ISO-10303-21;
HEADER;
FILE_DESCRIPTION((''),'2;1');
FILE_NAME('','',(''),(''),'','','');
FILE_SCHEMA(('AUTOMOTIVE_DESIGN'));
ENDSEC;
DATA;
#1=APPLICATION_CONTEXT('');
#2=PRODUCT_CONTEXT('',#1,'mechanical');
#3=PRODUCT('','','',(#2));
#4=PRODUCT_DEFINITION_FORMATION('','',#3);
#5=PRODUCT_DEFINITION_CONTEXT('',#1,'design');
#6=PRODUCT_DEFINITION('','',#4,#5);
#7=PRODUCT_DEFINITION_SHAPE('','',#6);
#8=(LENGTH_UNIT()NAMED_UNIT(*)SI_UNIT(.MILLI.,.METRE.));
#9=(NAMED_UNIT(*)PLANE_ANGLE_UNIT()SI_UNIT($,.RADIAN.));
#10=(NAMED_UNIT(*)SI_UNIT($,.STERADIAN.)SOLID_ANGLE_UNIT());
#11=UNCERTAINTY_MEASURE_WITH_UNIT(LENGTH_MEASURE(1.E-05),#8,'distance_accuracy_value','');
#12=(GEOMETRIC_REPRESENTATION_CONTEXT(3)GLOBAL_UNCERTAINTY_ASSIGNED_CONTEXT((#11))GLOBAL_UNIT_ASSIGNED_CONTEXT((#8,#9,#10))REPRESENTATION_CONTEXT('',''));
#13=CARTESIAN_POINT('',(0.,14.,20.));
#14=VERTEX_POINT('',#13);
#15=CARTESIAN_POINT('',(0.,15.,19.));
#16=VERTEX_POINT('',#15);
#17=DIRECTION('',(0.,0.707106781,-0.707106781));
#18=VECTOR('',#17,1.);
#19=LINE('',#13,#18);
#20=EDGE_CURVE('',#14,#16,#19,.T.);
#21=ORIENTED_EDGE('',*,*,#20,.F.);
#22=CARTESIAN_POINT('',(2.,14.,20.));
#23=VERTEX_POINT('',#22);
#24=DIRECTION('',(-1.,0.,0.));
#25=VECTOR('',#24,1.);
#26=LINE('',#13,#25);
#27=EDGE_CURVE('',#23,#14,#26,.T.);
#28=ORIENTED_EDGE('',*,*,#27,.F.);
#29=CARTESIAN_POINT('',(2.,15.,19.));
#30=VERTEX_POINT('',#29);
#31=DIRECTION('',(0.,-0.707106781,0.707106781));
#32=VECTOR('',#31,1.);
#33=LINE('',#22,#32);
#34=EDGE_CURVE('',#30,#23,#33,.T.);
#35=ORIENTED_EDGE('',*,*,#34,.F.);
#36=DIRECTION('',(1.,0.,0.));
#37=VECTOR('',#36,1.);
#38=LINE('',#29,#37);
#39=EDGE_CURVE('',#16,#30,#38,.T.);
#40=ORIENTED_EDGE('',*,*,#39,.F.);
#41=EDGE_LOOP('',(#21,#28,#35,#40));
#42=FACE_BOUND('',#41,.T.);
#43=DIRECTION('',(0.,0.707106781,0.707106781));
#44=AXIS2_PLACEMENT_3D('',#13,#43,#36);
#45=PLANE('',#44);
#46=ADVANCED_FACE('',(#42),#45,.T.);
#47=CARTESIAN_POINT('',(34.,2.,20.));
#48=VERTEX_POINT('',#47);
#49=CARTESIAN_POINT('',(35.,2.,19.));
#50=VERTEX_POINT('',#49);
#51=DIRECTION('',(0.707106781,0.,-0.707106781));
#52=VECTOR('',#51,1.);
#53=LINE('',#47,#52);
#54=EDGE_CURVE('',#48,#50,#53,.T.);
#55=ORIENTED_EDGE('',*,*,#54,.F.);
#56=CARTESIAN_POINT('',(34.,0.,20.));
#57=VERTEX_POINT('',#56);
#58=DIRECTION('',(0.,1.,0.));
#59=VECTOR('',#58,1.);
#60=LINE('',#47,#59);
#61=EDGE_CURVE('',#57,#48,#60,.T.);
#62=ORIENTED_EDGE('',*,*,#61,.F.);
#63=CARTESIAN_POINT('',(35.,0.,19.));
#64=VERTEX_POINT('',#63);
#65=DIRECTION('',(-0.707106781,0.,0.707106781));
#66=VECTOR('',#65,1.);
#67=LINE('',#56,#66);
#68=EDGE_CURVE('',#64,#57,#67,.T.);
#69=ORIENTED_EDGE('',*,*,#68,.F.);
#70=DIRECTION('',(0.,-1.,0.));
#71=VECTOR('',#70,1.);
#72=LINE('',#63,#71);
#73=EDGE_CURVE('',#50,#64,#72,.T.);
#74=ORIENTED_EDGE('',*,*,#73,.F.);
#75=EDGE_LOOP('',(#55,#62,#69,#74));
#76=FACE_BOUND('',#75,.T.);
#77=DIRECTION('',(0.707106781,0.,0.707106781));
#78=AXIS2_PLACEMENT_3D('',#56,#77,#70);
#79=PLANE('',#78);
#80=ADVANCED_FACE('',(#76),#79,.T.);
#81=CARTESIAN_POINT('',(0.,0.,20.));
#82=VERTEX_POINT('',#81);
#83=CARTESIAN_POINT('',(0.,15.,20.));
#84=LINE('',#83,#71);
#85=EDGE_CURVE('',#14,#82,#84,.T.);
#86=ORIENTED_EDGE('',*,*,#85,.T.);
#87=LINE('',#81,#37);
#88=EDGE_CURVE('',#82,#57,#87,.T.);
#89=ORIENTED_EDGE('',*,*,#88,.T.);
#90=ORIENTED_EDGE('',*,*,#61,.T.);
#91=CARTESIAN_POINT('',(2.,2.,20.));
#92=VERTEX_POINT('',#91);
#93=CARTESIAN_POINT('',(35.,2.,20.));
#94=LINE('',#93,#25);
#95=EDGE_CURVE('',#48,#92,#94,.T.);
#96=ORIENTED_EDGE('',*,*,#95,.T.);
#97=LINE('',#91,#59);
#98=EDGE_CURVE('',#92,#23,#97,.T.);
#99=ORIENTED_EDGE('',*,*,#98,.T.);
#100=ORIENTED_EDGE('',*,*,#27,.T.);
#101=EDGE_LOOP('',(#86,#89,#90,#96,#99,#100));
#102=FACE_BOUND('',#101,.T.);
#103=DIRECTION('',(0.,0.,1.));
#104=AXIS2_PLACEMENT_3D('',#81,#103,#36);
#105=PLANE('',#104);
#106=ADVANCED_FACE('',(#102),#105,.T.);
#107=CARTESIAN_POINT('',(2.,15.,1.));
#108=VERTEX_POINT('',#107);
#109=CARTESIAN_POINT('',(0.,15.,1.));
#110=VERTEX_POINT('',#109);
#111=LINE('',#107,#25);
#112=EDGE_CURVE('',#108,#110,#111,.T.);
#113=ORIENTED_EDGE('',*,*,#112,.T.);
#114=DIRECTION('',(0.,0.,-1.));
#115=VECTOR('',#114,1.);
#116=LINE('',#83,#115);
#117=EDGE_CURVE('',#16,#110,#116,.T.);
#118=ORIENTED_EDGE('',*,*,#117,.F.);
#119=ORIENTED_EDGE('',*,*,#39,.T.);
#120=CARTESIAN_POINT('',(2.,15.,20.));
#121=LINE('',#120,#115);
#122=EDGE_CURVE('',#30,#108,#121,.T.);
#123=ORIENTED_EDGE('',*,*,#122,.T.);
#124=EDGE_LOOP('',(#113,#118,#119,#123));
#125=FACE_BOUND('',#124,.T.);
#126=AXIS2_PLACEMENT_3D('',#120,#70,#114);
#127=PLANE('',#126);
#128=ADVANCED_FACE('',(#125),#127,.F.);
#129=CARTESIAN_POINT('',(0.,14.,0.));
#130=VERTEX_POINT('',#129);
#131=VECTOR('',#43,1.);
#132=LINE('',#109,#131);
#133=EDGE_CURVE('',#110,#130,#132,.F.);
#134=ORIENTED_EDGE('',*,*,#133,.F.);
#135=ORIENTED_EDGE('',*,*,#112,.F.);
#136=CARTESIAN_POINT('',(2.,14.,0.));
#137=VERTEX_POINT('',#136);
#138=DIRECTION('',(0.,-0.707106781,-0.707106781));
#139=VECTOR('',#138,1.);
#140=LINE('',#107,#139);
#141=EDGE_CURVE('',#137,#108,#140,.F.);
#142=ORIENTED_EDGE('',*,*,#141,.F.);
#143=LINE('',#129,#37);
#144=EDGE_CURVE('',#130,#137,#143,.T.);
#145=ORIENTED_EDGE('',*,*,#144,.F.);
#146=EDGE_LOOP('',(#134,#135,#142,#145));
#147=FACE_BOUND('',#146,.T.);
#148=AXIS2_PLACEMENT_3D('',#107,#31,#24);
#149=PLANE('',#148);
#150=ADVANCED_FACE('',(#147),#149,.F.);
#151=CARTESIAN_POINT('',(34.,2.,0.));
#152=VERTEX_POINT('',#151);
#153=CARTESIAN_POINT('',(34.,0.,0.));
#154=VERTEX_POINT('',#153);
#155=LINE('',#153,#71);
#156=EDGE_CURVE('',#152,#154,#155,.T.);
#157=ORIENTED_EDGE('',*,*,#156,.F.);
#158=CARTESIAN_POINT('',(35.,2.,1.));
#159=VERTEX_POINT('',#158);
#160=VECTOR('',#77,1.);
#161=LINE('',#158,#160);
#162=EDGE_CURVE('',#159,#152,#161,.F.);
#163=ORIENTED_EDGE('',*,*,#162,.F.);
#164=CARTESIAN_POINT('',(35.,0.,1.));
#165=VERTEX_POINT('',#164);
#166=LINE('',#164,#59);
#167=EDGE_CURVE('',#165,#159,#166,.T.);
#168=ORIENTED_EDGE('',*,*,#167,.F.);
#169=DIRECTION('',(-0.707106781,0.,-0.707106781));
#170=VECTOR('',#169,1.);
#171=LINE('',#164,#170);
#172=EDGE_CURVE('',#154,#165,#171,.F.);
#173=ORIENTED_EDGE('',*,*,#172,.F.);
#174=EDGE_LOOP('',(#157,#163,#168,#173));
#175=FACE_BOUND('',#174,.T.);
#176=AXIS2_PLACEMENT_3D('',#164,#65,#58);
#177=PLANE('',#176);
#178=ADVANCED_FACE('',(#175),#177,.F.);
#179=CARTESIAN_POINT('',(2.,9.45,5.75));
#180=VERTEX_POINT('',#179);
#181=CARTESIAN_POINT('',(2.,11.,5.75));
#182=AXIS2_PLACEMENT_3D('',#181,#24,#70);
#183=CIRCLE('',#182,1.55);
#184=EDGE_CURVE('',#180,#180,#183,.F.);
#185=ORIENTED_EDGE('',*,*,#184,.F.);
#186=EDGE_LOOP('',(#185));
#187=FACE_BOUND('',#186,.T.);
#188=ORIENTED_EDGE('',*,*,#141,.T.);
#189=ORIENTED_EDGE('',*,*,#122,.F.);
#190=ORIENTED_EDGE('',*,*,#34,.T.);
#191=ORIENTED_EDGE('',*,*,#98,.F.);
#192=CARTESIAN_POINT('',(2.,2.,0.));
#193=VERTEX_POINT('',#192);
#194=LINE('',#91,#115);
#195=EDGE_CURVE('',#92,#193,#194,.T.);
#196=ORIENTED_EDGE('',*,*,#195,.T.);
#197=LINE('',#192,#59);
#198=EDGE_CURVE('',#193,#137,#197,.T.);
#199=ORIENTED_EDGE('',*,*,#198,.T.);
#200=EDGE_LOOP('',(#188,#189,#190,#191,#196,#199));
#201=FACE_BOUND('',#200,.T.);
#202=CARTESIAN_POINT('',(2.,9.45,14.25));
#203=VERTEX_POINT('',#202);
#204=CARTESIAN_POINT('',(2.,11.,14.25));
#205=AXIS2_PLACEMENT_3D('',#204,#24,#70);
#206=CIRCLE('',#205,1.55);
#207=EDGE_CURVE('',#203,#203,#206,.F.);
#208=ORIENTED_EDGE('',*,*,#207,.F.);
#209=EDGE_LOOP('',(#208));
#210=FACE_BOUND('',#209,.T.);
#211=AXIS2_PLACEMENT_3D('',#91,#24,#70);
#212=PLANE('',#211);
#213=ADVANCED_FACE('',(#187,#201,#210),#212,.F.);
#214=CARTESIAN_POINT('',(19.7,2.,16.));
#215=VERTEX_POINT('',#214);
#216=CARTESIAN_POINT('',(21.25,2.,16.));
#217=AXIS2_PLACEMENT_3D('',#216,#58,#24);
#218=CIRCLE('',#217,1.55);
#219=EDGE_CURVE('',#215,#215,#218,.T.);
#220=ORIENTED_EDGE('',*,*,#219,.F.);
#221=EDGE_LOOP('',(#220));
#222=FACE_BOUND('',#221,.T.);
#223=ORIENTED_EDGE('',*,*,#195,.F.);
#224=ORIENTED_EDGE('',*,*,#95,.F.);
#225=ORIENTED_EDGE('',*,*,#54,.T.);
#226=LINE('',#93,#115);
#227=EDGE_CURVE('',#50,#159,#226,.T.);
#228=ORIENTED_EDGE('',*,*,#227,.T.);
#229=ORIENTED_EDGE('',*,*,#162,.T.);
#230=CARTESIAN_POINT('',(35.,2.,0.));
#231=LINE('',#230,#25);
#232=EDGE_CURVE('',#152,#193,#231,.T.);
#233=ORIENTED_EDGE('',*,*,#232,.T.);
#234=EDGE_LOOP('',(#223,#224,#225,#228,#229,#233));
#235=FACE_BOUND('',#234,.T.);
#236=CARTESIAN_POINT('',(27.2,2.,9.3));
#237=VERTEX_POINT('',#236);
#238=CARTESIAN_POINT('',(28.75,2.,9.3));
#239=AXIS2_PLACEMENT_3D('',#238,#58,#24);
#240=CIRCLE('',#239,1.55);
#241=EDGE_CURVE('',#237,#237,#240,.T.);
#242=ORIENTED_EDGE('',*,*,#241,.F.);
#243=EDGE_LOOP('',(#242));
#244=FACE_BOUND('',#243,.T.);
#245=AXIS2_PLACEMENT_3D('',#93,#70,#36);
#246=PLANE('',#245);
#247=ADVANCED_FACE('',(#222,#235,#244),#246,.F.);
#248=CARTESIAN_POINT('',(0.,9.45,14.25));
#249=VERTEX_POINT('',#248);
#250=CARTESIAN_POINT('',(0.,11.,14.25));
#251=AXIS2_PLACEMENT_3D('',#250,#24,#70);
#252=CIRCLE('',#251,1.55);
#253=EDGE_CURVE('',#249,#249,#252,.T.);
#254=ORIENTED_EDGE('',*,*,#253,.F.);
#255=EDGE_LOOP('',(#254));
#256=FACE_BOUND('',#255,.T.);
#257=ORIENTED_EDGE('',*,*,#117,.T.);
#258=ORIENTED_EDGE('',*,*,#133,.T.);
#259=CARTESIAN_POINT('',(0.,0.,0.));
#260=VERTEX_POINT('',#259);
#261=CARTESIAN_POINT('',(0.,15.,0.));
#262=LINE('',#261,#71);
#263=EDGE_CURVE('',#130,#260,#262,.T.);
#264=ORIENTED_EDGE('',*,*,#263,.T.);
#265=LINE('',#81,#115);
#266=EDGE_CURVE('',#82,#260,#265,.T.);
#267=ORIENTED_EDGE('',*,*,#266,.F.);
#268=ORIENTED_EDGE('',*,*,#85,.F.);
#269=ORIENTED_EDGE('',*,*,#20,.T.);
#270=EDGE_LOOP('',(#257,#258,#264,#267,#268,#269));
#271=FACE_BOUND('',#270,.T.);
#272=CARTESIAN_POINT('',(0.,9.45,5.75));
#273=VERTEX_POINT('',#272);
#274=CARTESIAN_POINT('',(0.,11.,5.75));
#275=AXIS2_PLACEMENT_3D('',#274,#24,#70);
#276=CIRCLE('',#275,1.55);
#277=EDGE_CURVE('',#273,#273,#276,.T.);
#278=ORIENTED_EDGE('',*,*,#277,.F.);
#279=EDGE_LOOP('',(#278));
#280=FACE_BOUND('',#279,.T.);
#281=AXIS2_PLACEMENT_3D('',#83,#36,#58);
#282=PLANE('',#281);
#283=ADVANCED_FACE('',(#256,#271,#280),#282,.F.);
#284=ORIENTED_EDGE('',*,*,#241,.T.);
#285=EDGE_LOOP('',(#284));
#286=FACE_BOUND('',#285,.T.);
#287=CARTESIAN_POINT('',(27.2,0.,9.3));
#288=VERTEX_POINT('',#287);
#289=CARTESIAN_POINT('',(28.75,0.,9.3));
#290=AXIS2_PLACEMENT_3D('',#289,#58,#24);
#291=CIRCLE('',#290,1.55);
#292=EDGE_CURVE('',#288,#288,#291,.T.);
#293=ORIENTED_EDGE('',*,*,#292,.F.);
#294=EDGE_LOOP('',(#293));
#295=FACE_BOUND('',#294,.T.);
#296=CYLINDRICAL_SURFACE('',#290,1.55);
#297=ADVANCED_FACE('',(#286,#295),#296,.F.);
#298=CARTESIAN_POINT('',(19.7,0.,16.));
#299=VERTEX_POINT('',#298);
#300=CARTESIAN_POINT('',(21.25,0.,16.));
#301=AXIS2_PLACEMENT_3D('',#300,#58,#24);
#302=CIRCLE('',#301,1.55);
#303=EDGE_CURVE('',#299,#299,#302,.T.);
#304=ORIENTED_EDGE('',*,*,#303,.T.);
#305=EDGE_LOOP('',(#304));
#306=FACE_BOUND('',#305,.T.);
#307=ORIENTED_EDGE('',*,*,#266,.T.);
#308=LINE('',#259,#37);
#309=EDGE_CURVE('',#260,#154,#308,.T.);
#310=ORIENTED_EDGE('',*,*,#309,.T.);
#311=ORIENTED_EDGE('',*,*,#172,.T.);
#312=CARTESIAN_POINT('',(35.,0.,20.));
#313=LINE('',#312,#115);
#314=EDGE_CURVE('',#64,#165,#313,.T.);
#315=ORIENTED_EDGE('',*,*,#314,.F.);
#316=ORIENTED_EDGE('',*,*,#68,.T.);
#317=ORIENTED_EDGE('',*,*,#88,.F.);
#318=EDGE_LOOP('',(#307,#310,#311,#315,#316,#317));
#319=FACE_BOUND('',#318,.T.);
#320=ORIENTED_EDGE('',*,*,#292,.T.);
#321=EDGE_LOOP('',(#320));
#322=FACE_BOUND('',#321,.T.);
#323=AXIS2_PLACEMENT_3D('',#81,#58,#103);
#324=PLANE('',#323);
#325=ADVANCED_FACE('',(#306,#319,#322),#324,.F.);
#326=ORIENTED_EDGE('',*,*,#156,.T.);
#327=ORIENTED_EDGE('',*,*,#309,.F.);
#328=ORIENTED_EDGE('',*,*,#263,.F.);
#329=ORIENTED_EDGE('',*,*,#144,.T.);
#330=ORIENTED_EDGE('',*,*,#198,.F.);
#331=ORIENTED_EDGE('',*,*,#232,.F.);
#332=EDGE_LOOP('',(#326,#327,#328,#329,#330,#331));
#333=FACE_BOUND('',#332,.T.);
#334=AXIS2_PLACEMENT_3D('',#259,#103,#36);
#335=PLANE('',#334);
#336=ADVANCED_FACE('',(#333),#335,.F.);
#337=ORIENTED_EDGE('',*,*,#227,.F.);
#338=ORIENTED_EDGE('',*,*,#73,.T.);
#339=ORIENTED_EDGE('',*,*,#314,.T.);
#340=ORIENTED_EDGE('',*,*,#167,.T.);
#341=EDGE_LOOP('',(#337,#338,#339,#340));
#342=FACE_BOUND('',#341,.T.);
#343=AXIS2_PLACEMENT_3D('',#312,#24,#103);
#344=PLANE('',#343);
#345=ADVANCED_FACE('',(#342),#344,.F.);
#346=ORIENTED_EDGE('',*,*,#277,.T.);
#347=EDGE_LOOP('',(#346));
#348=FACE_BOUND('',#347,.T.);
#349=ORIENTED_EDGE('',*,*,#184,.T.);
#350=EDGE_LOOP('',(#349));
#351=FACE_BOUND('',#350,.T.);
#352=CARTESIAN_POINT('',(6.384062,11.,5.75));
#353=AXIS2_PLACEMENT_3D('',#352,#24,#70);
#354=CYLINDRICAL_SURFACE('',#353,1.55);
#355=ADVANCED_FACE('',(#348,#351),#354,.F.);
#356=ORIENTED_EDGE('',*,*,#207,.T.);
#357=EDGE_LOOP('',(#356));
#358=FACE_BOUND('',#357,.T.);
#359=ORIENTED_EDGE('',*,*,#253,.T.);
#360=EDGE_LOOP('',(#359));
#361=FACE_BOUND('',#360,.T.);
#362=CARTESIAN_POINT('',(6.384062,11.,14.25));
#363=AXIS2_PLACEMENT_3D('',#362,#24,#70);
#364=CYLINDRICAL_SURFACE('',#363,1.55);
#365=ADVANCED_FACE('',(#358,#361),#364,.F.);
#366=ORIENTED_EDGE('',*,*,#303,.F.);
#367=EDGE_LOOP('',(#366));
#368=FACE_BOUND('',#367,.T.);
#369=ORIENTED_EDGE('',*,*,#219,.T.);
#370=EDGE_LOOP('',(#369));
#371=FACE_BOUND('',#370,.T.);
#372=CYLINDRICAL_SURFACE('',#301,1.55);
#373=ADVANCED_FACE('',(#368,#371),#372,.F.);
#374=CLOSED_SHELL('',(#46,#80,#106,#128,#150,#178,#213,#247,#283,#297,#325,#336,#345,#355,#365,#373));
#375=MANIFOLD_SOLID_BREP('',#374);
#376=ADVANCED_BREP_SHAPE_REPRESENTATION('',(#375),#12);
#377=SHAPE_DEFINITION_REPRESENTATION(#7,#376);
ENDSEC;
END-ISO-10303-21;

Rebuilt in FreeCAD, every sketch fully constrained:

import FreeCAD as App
import Part
import Sketcher

V = App.Vector
Q = App.Units.Quantity


def edges_at(feature, points):
    """Names of the edges that pass closest to the given points."""
    edges = feature.Shape.Edges
    near = lambda p: min(range(len(edges)), key=lambda i: edges[i].distToShape(Part.Vertex(*p))[0])
    return sorted({f"Edge{near(p) + 1}" for p in points})

doc = App.newDocument("Part")
body = doc.addObject("PartDesign::Body", "Body")

sketch1 = body.newObject("Sketcher::SketchObject", "Sketch")
sketch1.AttachmentSupport = (doc.getObject("XY_Plane"), [""])
sketch1.MapMode = "FlatFace"
sketch1.addGeometry(Part.LineSegment(V(0, 0, 0), V(35, 0, 0)), False)
sketch1.addGeometry(Part.LineSegment(V(35, 0, 0), V(35, 2, 0)), False)
sketch1.addGeometry(Part.LineSegment(V(35, 2, 0), V(2, 2, 0)), False)
sketch1.addGeometry(Part.LineSegment(V(2, 2, 0), V(2, 15, 0)), False)
sketch1.addGeometry(Part.LineSegment(V(2, 15, 0), V(0, 15, 0)), False)
sketch1.addGeometry(Part.LineSegment(V(0, 15, 0), V(0, 0, 0)), False)
sketch1.addConstraint(Sketcher.Constraint("Coincident", 0, 2, 1, 1))
sketch1.addConstraint(Sketcher.Constraint("Coincident", 1, 2, 2, 1))
sketch1.addConstraint(Sketcher.Constraint("Coincident", 2, 2, 3, 1))
sketch1.addConstraint(Sketcher.Constraint("Coincident", 3, 2, 4, 1))
sketch1.addConstraint(Sketcher.Constraint("Coincident", 4, 2, 5, 1))
sketch1.addConstraint(Sketcher.Constraint("Coincident", 5, 2, 0, 1))
sketch1.addConstraint(Sketcher.Constraint("Horizontal", 0))
sketch1.addConstraint(Sketcher.Constraint("Vertical", 1))
sketch1.addConstraint(Sketcher.Constraint("Horizontal", 2))
sketch1.addConstraint(Sketcher.Constraint("Vertical", 3))
sketch1.addConstraint(Sketcher.Constraint("Horizontal", 4))
sketch1.addConstraint(Sketcher.Constraint("Vertical", 5))
sketch1.addConstraint(Sketcher.Constraint("Coincident", 5, 2, -1, 1))
sketch1.addConstraint(Sketcher.Constraint("Equal", 4, 1))
sketch1.addConstraint(Sketcher.Constraint("DistanceX", 0, 1, 0, 2, Q("35 mm")))
sketch1.addConstraint(Sketcher.Constraint("DistanceX", 2, 2, 2, 1, Q("33 mm")))
sketch1.addConstraint(Sketcher.Constraint("DistanceY", 3, 1, 3, 2, Q("13 mm")))
pad1 = body.newObject("PartDesign::Pad", "Pad")
pad1.Profile = sketch1
pad1.Length = 20

sketch2 = body.newObject("Sketcher::SketchObject", "Sketch001")
sketch2.AttachmentSupport = (doc.getObject("YZ_Plane"), [""])
sketch2.MapMode = "FlatFace"
sketch2.addGeometry(Part.Circle(V(11, 14.25, 0), V(0, 0, 1), 1.55), False)
sketch2.addGeometry(Part.Circle(V(11, 5.75, 0), V(0, 0, 1), 1.55), False)
sketch2.addConstraint(Sketcher.Constraint("Equal", 0, 1))
sketch2.addConstraint(Sketcher.Constraint("Vertical", 0, 3, 1, 3))
sketch2.addConstraint(Sketcher.Constraint("Diameter", 0, Q("3.1 mm")))
sketch2.addConstraint(Sketcher.Constraint("DistanceX", -1, 1, 0, 3, Q("11 mm")))
sketch2.addConstraint(Sketcher.Constraint("DistanceY", 1, 3, 0, 3, Q("8.5 mm")))
sketch2.addConstraint(Sketcher.Constraint("DistanceY", -1, 1, 0, 3, Q("14.25 mm")))
pocket1 = body.newObject("PartDesign::Pocket", "Pocket")
pocket1.Profile = sketch2
pocket1.Length = 2
pocket1.Reversed = True

sketch3 = body.newObject("Sketcher::SketchObject", "Sketch002")
sketch3.AttachmentSupport = (doc.getObject("XZ_Plane"), [""])
sketch3.MapMode = "FlatFace"
sketch3.AttachmentOffset = App.Placement(V(0, 0, -2), App.Rotation())
sketch3.addGeometry(Part.Circle(V(21.25, 16, 0), V(0, 0, 1), 1.55), False)
sketch3.addGeometry(Part.Circle(V(28.75, 9.3, 0), V(0, 0, 1), 1.55), False)
sketch3.addConstraint(Sketcher.Constraint("Equal", 0, 1))
sketch3.addConstraint(Sketcher.Constraint("Diameter", 0, Q("3.1 mm")))
sketch3.addConstraint(Sketcher.Constraint("DistanceY", -1, 1, 0, 3, Q("16 mm")))
sketch3.addConstraint(Sketcher.Constraint("DistanceY", -1, 1, 1, 3, Q("9.3 mm")))
sketch3.addConstraint(Sketcher.Constraint("DistanceX", 0, 3, 1, 3, Q("7.5 mm")))
sketch3.addConstraint(Sketcher.Constraint("DistanceX", -1, 1, 0, 3, Q("21.25 mm")))
pocket2 = body.newObject("PartDesign::Pocket", "Pocket001")
pocket2.Profile = sketch3
pocket2.Type = "ThroughAll"
pocket2.Reversed = True
doc.recompute()

chamfer = body.newObject("PartDesign::Chamfer", "Chamfer")
chamfer.Base = (pocket2, edges_at(pocket2, [
    (35, 1, 20),
    (1, 15, 20),
    (1, 15, 0),
    (35, 1, 0),
]))
chamfer.Size = 1

doc.recompute()
